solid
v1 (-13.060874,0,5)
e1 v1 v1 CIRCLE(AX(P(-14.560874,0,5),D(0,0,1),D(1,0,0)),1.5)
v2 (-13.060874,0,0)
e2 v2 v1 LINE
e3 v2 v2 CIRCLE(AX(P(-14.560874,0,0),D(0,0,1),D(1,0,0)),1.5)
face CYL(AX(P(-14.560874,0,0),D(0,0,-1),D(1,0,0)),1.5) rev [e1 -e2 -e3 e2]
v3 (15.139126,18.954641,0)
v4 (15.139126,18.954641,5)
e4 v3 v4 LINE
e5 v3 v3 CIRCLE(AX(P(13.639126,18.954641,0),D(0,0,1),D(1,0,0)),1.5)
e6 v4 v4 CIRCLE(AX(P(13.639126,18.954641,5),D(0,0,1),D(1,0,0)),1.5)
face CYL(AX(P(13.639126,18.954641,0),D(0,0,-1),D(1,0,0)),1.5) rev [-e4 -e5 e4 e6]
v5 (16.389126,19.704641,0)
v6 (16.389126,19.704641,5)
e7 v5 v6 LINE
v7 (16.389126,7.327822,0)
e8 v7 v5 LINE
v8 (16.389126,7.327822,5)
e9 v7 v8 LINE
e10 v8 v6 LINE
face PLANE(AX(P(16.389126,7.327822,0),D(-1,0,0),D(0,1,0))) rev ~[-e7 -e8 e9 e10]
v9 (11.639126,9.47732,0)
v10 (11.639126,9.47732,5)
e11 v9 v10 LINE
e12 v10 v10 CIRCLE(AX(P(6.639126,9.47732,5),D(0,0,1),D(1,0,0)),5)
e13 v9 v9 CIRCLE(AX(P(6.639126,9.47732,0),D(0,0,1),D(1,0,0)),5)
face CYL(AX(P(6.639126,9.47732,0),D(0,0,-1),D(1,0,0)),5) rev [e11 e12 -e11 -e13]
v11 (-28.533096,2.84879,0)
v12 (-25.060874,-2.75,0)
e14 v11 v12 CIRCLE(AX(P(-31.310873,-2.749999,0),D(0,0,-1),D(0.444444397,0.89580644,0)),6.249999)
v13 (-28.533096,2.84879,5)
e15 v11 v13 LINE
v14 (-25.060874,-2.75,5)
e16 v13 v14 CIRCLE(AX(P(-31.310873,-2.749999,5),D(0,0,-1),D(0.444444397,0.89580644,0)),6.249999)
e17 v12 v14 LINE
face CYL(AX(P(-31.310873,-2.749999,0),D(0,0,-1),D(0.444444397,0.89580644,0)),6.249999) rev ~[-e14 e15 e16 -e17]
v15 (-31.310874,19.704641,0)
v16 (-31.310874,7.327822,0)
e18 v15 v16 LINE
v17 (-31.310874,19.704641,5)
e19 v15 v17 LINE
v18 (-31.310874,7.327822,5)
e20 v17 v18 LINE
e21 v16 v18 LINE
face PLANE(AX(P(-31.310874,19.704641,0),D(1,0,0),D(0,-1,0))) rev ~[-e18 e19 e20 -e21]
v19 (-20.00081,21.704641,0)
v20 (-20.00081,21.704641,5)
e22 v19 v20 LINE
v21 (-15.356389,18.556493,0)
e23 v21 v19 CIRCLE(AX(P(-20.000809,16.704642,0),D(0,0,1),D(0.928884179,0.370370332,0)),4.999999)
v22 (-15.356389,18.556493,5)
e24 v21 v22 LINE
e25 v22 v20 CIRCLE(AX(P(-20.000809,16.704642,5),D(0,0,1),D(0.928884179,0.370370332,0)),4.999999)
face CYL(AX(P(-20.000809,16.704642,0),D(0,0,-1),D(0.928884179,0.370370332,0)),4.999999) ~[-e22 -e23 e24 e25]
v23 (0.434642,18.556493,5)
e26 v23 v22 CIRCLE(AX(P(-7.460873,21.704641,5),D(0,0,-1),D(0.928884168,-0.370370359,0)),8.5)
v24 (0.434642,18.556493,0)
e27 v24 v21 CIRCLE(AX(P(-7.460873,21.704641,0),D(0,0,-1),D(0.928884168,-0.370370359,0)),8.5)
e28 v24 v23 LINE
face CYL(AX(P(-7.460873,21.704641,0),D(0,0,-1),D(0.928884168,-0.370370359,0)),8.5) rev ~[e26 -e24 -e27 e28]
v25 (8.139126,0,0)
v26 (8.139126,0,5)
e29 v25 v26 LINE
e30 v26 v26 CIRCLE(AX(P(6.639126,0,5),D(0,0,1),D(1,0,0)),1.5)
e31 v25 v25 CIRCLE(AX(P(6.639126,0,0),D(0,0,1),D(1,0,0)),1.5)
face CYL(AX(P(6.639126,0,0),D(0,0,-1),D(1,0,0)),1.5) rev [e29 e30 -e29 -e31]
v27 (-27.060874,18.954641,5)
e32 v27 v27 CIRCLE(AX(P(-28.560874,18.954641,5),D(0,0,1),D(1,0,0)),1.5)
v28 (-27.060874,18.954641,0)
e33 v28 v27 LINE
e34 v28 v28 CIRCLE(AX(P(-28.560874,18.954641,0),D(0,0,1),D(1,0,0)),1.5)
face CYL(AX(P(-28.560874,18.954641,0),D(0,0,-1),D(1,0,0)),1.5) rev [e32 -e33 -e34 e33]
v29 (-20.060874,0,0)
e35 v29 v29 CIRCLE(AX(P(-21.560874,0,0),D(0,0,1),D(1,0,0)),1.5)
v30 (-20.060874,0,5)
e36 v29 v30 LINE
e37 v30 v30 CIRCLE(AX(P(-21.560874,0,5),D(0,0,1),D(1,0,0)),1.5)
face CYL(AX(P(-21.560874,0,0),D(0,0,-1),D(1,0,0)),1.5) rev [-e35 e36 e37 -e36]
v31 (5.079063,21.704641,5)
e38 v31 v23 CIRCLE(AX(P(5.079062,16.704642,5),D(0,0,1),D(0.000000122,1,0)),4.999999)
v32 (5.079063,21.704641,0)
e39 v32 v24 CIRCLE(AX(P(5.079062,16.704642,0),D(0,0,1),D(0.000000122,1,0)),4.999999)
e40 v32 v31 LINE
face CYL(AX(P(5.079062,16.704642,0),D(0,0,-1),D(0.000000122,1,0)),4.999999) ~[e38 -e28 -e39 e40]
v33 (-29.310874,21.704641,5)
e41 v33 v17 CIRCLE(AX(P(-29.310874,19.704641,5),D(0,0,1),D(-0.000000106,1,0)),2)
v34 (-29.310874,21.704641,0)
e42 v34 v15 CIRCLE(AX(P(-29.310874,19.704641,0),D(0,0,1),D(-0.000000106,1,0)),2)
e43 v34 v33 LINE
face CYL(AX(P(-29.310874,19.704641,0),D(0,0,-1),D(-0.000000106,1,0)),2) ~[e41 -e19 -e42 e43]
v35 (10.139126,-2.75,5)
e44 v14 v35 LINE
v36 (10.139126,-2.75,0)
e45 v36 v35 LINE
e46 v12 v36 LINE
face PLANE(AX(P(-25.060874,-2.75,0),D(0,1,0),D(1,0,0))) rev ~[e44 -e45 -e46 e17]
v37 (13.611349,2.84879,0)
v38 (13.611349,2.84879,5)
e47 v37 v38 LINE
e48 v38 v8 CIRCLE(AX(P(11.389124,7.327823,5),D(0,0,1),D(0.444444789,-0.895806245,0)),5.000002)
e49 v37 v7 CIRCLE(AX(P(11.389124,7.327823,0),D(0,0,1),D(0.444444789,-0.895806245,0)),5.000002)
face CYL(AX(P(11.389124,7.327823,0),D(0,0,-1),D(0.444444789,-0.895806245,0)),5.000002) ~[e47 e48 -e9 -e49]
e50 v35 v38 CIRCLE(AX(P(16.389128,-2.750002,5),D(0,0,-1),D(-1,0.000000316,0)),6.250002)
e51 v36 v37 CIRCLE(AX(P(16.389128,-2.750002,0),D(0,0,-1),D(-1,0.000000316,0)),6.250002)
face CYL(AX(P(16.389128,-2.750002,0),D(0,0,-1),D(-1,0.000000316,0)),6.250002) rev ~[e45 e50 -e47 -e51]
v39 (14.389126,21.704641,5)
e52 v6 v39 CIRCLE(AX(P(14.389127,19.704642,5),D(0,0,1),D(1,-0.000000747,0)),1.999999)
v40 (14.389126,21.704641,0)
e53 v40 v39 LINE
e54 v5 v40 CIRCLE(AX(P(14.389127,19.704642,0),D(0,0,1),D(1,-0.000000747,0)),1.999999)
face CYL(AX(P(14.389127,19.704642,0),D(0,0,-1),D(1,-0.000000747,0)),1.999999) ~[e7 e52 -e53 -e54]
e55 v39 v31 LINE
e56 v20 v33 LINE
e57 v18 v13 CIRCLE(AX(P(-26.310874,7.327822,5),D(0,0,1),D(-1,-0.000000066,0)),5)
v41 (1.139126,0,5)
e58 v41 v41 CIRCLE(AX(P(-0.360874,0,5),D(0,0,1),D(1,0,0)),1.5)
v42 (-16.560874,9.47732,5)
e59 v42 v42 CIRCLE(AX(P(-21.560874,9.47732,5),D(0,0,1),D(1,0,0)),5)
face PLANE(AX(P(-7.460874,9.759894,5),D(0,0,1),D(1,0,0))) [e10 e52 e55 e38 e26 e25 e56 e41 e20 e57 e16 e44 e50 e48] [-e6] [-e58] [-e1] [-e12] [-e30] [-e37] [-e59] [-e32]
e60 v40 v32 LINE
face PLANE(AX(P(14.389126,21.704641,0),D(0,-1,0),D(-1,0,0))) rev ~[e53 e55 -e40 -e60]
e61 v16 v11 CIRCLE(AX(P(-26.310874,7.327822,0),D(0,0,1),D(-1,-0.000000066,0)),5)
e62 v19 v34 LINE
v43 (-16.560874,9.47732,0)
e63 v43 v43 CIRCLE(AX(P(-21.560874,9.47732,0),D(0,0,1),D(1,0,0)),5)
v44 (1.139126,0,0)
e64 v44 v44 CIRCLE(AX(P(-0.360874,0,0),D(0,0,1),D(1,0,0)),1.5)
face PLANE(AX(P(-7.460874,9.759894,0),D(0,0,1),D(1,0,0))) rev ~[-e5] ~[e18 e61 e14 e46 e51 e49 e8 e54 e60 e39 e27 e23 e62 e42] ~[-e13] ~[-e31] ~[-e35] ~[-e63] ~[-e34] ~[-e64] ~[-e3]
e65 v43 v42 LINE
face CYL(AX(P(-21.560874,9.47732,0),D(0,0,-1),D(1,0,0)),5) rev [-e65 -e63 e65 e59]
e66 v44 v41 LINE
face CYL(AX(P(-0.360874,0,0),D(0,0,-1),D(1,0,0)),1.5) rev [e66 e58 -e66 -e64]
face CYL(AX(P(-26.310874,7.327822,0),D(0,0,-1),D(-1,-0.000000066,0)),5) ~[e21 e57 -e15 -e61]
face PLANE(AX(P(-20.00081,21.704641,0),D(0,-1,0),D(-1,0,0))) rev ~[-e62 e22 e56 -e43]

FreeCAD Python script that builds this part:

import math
import FreeCAD as App
import Part
import Sketcher
from FreeCAD import Vector
Q = App.Units.Quantity

doc = App.newDocument("Part")
params = doc.addObject("Spreadsheet::Sheet", "Params")
for row, (alias, value) in enumerate([
    ("sketch1_diameter", "3 mm"),
    ("sketch1_diameter2", "10 mm"),
    ("sketch1_radius", "1.999999 mm"),
    ("sketch1_radius2", "8.5 mm"),
    ("sketch1_radius3", "6.249999 mm"),
    ("pad1_length", "5 mm"),
], start=1):
    params.set(f"A{row}", alias)
    params.set(f"B{row}", "=" + value)
    params.setAlias(f"B{row}", alias)

body = doc.addObject("PartDesign::Body", "Body")

# Sketch on XY plane
sketch1 = body.newObject("Sketcher::SketchObject", "Sketch")
sketch1.AttachmentSupport = (doc.getObject("XY_Plane"), [""])
sketch1.MapMode = "FlatFace"
sketch1.addGeometry(Part.ArcOfCircle(Part.Circle(Vector(14.4, 19.7, 0), Vector(0, 0, 1), 2), math.radians(0), math.radians(90)), False)
sketch1.addGeometry(Part.LineSegment(Vector(14.4, 21.7, 0), Vector(5.1, 21.7, 0)), False)
sketch1.addGeometry(Part.ArcOfCircle(Part.Circle(Vector(5.1, 16.7, 0), Vector(0, 0, 1), 5), math.radians(90), math.radians(158)), False)
sketch1.addGeometry(Part.ArcOfCircle(Part.Circle(Vector(-7.5, 21.7, 0), Vector(0, 0, 1), 8.5), math.radians(-158), math.radians(-22)), False)
sketch1.addGeometry(Part.ArcOfCircle(Part.Circle(Vector(-20, 16.7, 0), Vector(0, 0, 1), 5), math.radians(22), math.radians(90)), False)
sketch1.addGeometry(Part.LineSegment(Vector(-20, 21.7, 0), Vector(-29.3, 21.7, 0)), False)
sketch1.addGeometry(Part.ArcOfCircle(Part.Circle(Vector(-29.3, 19.7, 0), Vector(0, 0, 1), 2), math.radians(90), math.radians(180)), False)
sketch1.addGeometry(Part.LineSegment(Vector(-31.3, 19.7, 0), Vector(-31.3, 7.3, 0)), False)
sketch1.addGeometry(Part.ArcOfCircle(Part.Circle(Vector(-26.3, 7.3, 0), Vector(0, 0, 1), 5), math.radians(-180), math.radians(-116)), False)
sketch1.addGeometry(Part.ArcOfCircle(Part.Circle(Vector(-31.3, -2.7, 0), Vector(0, 0, 1), 6.2), math.radians(0), math.radians(64)), False)
sketch1.addGeometry(Part.LineSegment(Vector(-25.1, -2.8, 0), Vector(10.1, -2.8, 0)), False)
sketch1.addGeometry(Part.ArcOfCircle(Part.Circle(Vector(16.4, -2.8, 0), Vector(0, 0, 1), 6.3), math.radians(116), math.radians(180)), False)
sketch1.addGeometry(Part.ArcOfCircle(Part.Circle(Vector(11.4, 7.3, 0), Vector(0, 0, 1), 5), math.radians(-64), math.radians(0)), False)
sketch1.addGeometry(Part.LineSegment(Vector(16.4, 7.3, 0), Vector(16.4, 19.7, 0)), False)
sketch1.addGeometry(Part.Circle(Vector(-21.6, 0, 0), Vector(0, 0, 1), 1.5), False)
sketch1.addGeometry(Part.Circle(Vector(-14.6, 0, 0), Vector(0, 0, 1), 1.5), False)
sketch1.addGeometry(Part.Circle(Vector(-21.6, 9.5, 0), Vector(0, 0, 1), 5), False)
sketch1.addGeometry(Part.Circle(Vector(-0.4, 0, 0), Vector(0, 0, 1), 1.5), False)
sketch1.addGeometry(Part.Circle(Vector(6.6, 0, 0), Vector(0, 0, 1), 1.5), False)
sketch1.addGeometry(Part.Circle(Vector(6.6, 9.5, 0), Vector(0, 0, 1), 5), False)
sketch1.addGeometry(Part.Circle(Vector(-28.6, 19, 0), Vector(0, 0, 1), 1.5), False)
sketch1.addGeometry(Part.Circle(Vector(13.6, 19, 0), Vector(0, 0, 1), 1.5), False)
sketch1.addConstraint(Sketcher.Constraint("Tangent", 0, 2, 1, 1))
sketch1.addConstraint(Sketcher.Constraint("Tangent", 1, 2, 2, 1))
sketch1.addConstraint(Sketcher.Constraint("Tangent", 2, 2, 3, 2))
sketch1.addConstraint(Sketcher.Constraint("Tangent", 3, 1, 4, 1))
sketch1.addConstraint(Sketcher.Constraint("Tangent", 4, 2, 5, 1))
sketch1.addConstraint(Sketcher.Constraint("Tangent", 5, 2, 6, 1))
sketch1.addConstraint(Sketcher.Constraint("Tangent", 6, 2, 7, 1))
sketch1.addConstraint(Sketcher.Constraint("Tangent", 7, 2, 8, 1))
sketch1.addConstraint(Sketcher.Constraint("Tangent", 8, 2, 9, 2))
sketch1.addConstraint(Sketcher.Constraint("Coincident", 9, 1, 10, 1))
sketch1.addConstraint(Sketcher.Constraint("Coincident", 10, 2, 11, 2))
sketch1.addConstraint(Sketcher.Constraint("Tangent", 11, 1, 12, 1))
sketch1.addConstraint(Sketcher.Constraint("Tangent", 12, 2, 13, 1))
sketch1.addConstraint(Sketcher.Constraint("Tangent", 13, 2, 0, 1))
sketch1.addConstraint(Sketcher.Constraint("Horizontal", 1))
sketch1.addConstraint(Sketcher.Constraint("Horizontal", 5))
sketch1.addConstraint(Sketcher.Constraint("Vertical", 7))
sketch1.addConstraint(Sketcher.Constraint("Horizontal", 10))
sketch1.addConstraint(Sketcher.Constraint("Vertical", 13))
sketch1.addConstraint(Sketcher.Constraint("Equal", 2, 4))
sketch1.addConstraint(Sketcher.Constraint("Equal", 0, 6))
sketch1.addConstraint(Sketcher.Constraint("Equal", 4, 8))
sketch1.addConstraint(Sketcher.Constraint("Equal", 8, 12))
sketch1.addConstraint(Sketcher.Constraint("Equal", 14, 15))
sketch1.addConstraint(Sketcher.Constraint("Equal", 12, 16))
sketch1.addConstraint(Sketcher.Constraint("Equal", 15, 17))
sketch1.addConstraint(Sketcher.Constraint("Equal", 17, 18))
sketch1.addConstraint(Sketcher.Constraint("Equal", 16, 19))
sketch1.addConstraint(Sketcher.Constraint("Equal", 18, 20))
sketch1.addConstraint(Sketcher.Constraint("Equal", 20, 21))
sketch1.addConstraint(Sketcher.Constraint("PointOnObject", 14, 3, -1))
sketch1.addConstraint(Sketcher.Constraint("PointOnObject", 15, 3, -1))
sketch1.addConstraint(Sketcher.Constraint("PointOnObject", 17, 3, -1))
sketch1.addConstraint(Sketcher.Constraint("PointOnObject", 18, 3, -1))
sketch1.addConstraint(Sketcher.Constraint("Horizontal", 2, 3, 4, 3))
sketch1.addConstraint(Sketcher.Constraint("Horizontal", 8, 3, 12, 3))
sketch1.addConstraint(Sketcher.Constraint("Horizontal", 16, 3, 19, 3))
sketch1.addConstraint(Sketcher.Constraint("Horizontal", 20, 3, 21, 3))
sketch1.addConstraint(Sketcher.Constraint("Horizontal", 3, 3, 0, 2))
sketch1.addConstraint(Sketcher.Constraint("Horizontal", 11, 3, 9, 1))
sketch1.addConstraint(Sketcher.Constraint("Horizontal", 8, 2, 11, 1))
sketch1.addConstraint(Sketcher.Constraint("Vertical", 14, 3, 16, 3))
sketch1.addConstraint(Sketcher.Constraint("Vertical", 18, 3, 19, 3))
sketch1.addConstraint(Sketcher.Constraint("Vertical", 9, 3, 6, 2))
sketch1.addConstraint(Sketcher.Constraint("Equal", 1, 5))
sketch1.addConstraint(Sketcher.Constraint("Diameter", 14, Q("3 mm")))
sketch1.addConstraint(Sketcher.Constraint("Diameter", 16, Q("10 mm")))
sketch1.addConstraint(Sketcher.Constraint("Radius", 0, Q("1.999999 mm")))
sketch1.addConstraint(Sketcher.Constraint("Radius", 3, Q("8.5 mm")))
sketch1.addConstraint(Sketcher.Constraint("Radius", 9, Q("6.249999 mm")))
sketch1.addConstraint(Sketcher.Constraint("DistanceX", 10, 1, 10, 2, Q("35.2 mm")))
sketch1.addConstraint(Sketcher.Constraint("DistanceX", 0, 3, 11, 3, Q("2.000001 mm")))
sketch1.addConstraint(Sketcher.Constraint("DistanceX", 14, 3, 15, 3, Q("7 mm")))
sketch1.addConstraint(Sketcher.Constraint("DistanceX", 17, 3, 18, 3, Q("7 mm")))
sketch1.addConstraint(Sketcher.Constraint("DistanceX", 20, 3, 16, 3, Q("7 mm")))
sketch1.addConstraint(Sketcher.Constraint("DistanceX", 19, 3, 21, 3, Q("7 mm")))
sketch1.addConstraint(Sketcher.Constraint("DistanceX", 14, 3, 3, 3, Q("14.1 mm")))
sketch1.addConstraint(Sketcher.Constraint("DistanceX", 15, 3, 17, 3, Q("14.2 mm")))
sketch1.addConstraint(Sketcher.Constraint("DistanceY", 9, 3, -1, 1, Q("2.749999 mm")))
sketch1.addConstraint(Sketcher.Constraint("DistanceY", 20, 3, 6, 3, Q("0.75 mm")))
sketch1.addConstraint(Sketcher.Constraint("DistanceY", 7, 2, 7, 1, Q("12.376819 mm")))
sketch1.addConstraint(Sketcher.Constraint("DistanceY", 7, 2, 16, 3, Q("2.149498 mm")))
sketch1.addConstraint(Sketcher.Constraint("DistanceX", 4, 3, -1, 1, Q("20.000809 mm")))
sketch1.setExpression("Constraints[45]", "Params.sketch1_diameter")
sketch1.setExpression("Constraints[46]", "Params.sketch1_diameter2")
sketch1.setExpression("Constraints[47]", "Params.sketch1_radius")
sketch1.setExpression("Constraints[48]", "Params.sketch1_radius2")
sketch1.setExpression("Constraints[49]", "Params.sketch1_radius3")
pad1 = body.newObject("PartDesign::Pad", "Pad")
pad1.Profile = sketch1
pad1.setExpression("Length", "Params.pad1_length")

doc.recompute()
